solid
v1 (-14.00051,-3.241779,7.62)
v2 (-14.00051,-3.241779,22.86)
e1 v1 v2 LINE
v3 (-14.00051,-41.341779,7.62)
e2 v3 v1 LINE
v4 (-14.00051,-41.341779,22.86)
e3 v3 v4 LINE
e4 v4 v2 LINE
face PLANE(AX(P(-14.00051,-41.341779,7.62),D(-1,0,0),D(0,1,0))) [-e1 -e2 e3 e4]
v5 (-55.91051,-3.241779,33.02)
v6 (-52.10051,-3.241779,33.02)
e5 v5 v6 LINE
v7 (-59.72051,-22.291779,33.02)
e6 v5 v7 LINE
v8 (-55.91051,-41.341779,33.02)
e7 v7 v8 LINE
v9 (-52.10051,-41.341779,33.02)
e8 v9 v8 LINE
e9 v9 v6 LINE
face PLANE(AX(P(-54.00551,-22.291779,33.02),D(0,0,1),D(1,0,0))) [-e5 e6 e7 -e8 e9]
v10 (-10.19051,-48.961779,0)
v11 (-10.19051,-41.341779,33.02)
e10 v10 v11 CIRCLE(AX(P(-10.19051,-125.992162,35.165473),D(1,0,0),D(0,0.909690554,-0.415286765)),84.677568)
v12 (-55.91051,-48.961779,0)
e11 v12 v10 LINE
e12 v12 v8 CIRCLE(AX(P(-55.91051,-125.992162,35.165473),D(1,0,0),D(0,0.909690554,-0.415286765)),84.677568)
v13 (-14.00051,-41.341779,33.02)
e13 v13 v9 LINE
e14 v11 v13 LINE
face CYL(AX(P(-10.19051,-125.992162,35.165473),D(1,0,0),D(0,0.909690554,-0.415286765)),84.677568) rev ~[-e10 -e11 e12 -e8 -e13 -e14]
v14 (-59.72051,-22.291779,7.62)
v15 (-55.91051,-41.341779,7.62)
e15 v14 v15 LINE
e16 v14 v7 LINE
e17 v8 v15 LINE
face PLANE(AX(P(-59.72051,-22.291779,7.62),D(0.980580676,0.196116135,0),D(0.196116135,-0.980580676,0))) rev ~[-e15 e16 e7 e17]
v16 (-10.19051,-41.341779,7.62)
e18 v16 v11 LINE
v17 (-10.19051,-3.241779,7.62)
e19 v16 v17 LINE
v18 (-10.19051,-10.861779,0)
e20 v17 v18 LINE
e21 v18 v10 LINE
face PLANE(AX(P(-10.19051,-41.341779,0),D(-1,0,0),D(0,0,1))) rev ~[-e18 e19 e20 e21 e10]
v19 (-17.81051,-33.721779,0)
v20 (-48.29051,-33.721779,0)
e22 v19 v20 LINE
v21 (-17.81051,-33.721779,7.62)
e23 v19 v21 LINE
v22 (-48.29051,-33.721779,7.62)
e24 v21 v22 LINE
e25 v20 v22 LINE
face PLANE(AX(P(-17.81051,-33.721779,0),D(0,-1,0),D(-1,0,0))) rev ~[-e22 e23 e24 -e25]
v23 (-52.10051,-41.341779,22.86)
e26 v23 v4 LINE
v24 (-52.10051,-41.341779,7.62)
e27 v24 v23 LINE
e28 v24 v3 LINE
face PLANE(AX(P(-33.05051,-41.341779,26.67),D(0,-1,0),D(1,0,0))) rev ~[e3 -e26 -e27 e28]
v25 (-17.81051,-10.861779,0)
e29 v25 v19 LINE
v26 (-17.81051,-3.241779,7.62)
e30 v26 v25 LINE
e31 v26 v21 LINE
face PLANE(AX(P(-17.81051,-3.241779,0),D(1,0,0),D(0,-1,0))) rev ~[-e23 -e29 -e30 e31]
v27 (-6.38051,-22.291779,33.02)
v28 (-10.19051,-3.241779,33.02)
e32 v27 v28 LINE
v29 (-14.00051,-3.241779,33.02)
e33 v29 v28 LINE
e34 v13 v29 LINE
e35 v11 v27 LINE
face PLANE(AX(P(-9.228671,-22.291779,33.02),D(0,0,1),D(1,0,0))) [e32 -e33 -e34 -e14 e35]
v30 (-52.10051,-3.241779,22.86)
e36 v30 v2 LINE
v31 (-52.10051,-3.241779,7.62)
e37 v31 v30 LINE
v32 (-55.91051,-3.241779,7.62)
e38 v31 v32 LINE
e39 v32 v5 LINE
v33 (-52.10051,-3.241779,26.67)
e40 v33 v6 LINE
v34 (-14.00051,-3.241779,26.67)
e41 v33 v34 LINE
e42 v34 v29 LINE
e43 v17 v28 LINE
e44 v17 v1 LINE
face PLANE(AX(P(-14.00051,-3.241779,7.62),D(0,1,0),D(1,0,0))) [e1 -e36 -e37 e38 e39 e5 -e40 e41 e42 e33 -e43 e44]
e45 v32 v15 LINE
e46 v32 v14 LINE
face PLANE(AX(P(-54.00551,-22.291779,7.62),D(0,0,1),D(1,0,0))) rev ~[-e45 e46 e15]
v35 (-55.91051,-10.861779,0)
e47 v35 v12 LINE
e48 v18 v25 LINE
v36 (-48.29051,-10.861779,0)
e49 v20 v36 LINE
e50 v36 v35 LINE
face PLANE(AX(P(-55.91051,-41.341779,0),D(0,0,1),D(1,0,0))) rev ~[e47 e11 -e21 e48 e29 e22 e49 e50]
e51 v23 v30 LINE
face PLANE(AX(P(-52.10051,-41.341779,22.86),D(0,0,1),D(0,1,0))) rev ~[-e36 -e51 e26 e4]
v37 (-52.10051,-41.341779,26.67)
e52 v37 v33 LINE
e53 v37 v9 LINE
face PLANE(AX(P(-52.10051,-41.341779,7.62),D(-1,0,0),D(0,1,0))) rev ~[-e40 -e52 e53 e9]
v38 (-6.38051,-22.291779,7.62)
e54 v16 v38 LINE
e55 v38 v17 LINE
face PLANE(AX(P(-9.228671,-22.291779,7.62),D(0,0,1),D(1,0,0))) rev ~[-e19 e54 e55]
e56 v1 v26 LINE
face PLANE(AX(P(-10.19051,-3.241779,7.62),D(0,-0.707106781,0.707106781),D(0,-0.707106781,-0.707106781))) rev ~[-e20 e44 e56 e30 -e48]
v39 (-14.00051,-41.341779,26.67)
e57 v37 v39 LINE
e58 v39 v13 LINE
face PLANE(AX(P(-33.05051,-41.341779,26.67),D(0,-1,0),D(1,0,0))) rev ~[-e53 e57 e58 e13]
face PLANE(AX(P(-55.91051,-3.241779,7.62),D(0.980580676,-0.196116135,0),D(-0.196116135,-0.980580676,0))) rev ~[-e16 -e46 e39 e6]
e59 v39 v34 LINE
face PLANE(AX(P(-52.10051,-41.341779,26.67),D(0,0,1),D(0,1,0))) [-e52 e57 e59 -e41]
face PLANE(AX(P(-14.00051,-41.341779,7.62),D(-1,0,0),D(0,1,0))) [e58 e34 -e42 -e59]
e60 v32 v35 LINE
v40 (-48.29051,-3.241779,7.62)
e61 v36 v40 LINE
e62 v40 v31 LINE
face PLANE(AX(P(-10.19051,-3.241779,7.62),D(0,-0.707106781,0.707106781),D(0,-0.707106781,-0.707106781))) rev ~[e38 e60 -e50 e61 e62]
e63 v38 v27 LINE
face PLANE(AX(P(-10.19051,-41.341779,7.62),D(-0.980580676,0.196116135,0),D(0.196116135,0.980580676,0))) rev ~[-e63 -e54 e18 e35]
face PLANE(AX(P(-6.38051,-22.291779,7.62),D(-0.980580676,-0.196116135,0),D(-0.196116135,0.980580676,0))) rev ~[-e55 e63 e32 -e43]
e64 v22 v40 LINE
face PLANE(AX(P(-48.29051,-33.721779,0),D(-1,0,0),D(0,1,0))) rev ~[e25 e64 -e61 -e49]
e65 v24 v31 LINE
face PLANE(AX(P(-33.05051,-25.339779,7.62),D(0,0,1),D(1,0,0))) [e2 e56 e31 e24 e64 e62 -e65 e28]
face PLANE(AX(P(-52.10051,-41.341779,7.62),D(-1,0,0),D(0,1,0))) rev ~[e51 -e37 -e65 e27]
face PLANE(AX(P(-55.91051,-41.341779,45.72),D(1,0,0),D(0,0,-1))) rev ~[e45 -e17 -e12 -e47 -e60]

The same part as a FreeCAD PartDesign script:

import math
import FreeCAD as App
import Part
import Sketcher

V = App.Vector
Q = App.Units.Quantity

doc = App.newDocument("Part")
body = doc.addObject("PartDesign::Body", "Body")

sketch1 = body.newObject("Sketcher::SketchObject", "Sketch")
sketch1.AttachmentSupport = (doc.getObject("XY_Plane"), [""])
sketch1.MapMode = "FlatFace"
sketch1.addGeometry(Part.LineSegment(V(-48, -3, 0), V(-56, -3, 0)), False)
sketch1.addGeometry(Part.LineSegment(V(-56, -3, 0), V(-56, -41, 0)), False)
sketch1.addGeometry(Part.LineSegment(V(-56, -41, 0), V(-10, -41, 0)), False)
sketch1.addGeometry(Part.LineSegment(V(-10, -41, 0), V(-10, -3, 0)), False)
sketch1.addGeometry(Part.LineSegment(V(-10, -3, 0), V(-18, -3, 0)), False)
sketch1.addGeometry(Part.LineSegment(V(-18, -3, 0), V(-18, -34, 0)), False)
sketch1.addGeometry(Part.LineSegment(V(-18, -34, 0), V(-48, -34, 0)), False)
sketch1.addGeometry(Part.LineSegment(V(-48, -34, 0), V(-48, -3, 0)), False)
sketch1.addConstraint(Sketcher.Constraint("Coincident", 0, 2, 1, 1))
sketch1.addConstraint(Sketcher.Constraint("Coincident", 1, 2, 2, 1))
sketch1.addConstraint(Sketcher.Constraint("Coincident", 2, 2, 3, 1))
sketch1.addConstraint(Sketcher.Constraint("Coincident", 3, 2, 4, 1))
sketch1.addConstraint(Sketcher.Constraint("Coincident", 4, 2, 5, 1))
sketch1.addConstraint(Sketcher.Constraint("Coincident", 5, 2, 6, 1))
sketch1.addConstraint(Sketcher.Constraint("Coincident", 6, 2, 7, 1))
sketch1.addConstraint(Sketcher.Constraint("Coincident", 7, 2, 0, 1))
sketch1.addConstraint(Sketcher.Constraint("Horizontal", 0))
sketch1.addConstraint(Sketcher.Constraint("Vertical", 1))
sketch1.addConstraint(Sketcher.Constraint("Horizontal", 2))
sketch1.addConstraint(Sketcher.Constraint("Vertical", 3))
sketch1.addConstraint(Sketcher.Constraint("Horizontal", 4))
sketch1.addConstraint(Sketcher.Constraint("Vertical", 5))
sketch1.addConstraint(Sketcher.Constraint("Horizontal", 6))
sketch1.addConstraint(Sketcher.Constraint("Vertical", 7))
sketch1.addConstraint(Sketcher.Constraint("Horizontal", 0, 2, 3, 2))
sketch1.addConstraint(Sketcher.Constraint("Equal", 0, 4))
sketch1.addConstraint(Sketcher.Constraint("Equal", 6, 5))
sketch1.addConstraint(Sketcher.Constraint("DistanceX", 0, 2, 0, 1, Q("0.3 in")))
sketch1.addConstraint(Sketcher.Constraint("DistanceX", 2, 1, 2, 2, Q("1.8 in")))
sketch1.addConstraint(Sketcher.Constraint("DistanceY", 1, 2, 1, 1, Q("1.5 in")))
sketch1.addConstraint(Sketcher.Constraint("DistanceX", 0, 2, -1, 1, 55.91051))
sketch1.addConstraint(Sketcher.Constraint("DistanceY", 0, 2, -1, 1, 3.241779))
pad1 = body.newObject("PartDesign::Pad", "Pad")
pad1.Profile = sketch1
pad1.Length = Q("0.3 in")

sketch2 = body.newObject("Sketcher::SketchObject", "Sketch001")
sketch2.AttachmentSupport = (doc.getObject("YZ_Plane"), [""])
sketch2.MapMode = "FlatFace"
sketch2.AttachmentOffset = App.Placement(V(0, 0, -10.19051), App.Rotation())
sketch2.addGeometry(Part.LineSegment(V(-3, 0, 0), V(-3, 8, 0)), False)
sketch2.addGeometry(Part.LineSegment(V(-3, 8, 0), V(-11, 0, 0)), False)
sketch2.addGeometry(Part.LineSegment(V(-11, 0, 0), V(-3, 0, 0)), False)
sketch2.addConstraint(Sketcher.Constraint("Coincident", 0, 2, 1, 1))
sketch2.addConstraint(Sketcher.Constraint("Coincident", 1, 2, 2, 1))
sketch2.addConstraint(Sketcher.Constraint("Coincident", 2, 2, 0, 1))
sketch2.addConstraint(Sketcher.Constraint("Vertical", 0))
sketch2.addConstraint(Sketcher.Constraint("Horizontal", 2))
sketch2.addConstraint(Sketcher.Constraint("PointOnObject", 1, 2, -1))
sketch2.addConstraint(Sketcher.Constraint("Equal", 2, 0))
sketch2.addConstraint(Sketcher.Constraint("DistanceX", 2, 1, 2, 2, Q("0.3 in")))
sketch2.addConstraint(Sketcher.Constraint("DistanceX", 0, 2, -1, 1, 3.241779))
pocket1 = body.newObject("PartDesign::Pocket", "Pocket")
pocket1.Profile = sketch2
pocket1.Length = Q("2 in")

sketch3 = body.newObject("Sketcher::SketchObject", "Sketch002")
sketch3.AttachmentSupport = (doc.getObject("XZ_Plane"), [""])
sketch3.MapMode = "FlatFace"
sketch3.AttachmentOffset = App.Placement(V(0, 0, 41.341779), App.Rotation())
sketch3.addGeometry(Part.LineSegment(V(-56, 46, 0), V(-56, 0, 0)), False)
sketch3.addGeometry(Part.LineSegment(V(-56, 0, 0), V(-10, 0, 0)), False)
sketch3.addGeometry(Part.LineSegment(V(-10, 0, 0), V(-10, 46, 0)), False)
sketch3.addGeometry(Part.LineSegment(V(-10, 46, 0), V(-56, 46, 0)), False)
sketch3.addConstraint(Sketcher.Constraint("Coincident", 0, 2, 1, 1))
sketch3.addConstraint(Sketcher.Constraint("Coincident", 1, 2, 2, 1))
sketch3.addConstraint(Sketcher.Constraint("Coincident", 2, 2, 3, 1))
sketch3.addConstraint(Sketcher.Constraint("Coincident", 3, 2, 0, 1))
sketch3.addConstraint(Sketcher.Constraint("Vertical", 0))
sketch3.addConstraint(Sketcher.Constraint("Horizontal", 1))
sketch3.addConstraint(Sketcher.Constraint("Vertical", 2))
sketch3.addConstraint(Sketcher.Constraint("Horizontal", 3))
sketch3.addConstraint(Sketcher.Constraint("PointOnObject", 0, 2, -1))
sketch3.addConstraint(Sketcher.Constraint("Equal", 3, 0))
sketch3.addConstraint(Sketcher.Constraint("DistanceX", 1, 1, 1, 2, Q("1.8 in")))
sketch3.addConstraint(Sketcher.Constraint("DistanceX", 0, 2, -1, 1, 55.91051))
pad2 = body.newObject("PartDesign::Pad", "Pad001")
pad2.Profile = sketch3
pad2.Length = Q("0.3 in")

sketch4 = body.newObject("Sketcher::SketchObject", "Sketch003")
sketch4.AttachmentSupport = (doc.getObject("YZ_Plane"), [""])
sketch4.MapMode = "FlatFace"
sketch4.AttachmentOffset = App.Placement(V(0, 0, -10.19051), App.Rotation())
sketch4.addGeometry(Part.LineSegment(V(-49, 46, 0), V(-49, 0, 0)), False)
sketch4.addGeometry(Part.ArcOfCircle(Part.Circle(V(-126, 35, 0), V(0, 0, 1), 85), math.radians(-25), math.radians(-1)), False)
sketch4.addGeometry(Part.LineSegment(V(-41, 33, 0), V(-41, 46, 0)), False)
sketch4.addGeometry(Part.LineSegment(V(-41, 46, 0), V(-49, 46, 0)), False)
sketch4.addConstraint(Sketcher.Constraint("Coincident", 0, 2, 1, 1))
sketch4.addConstraint(Sketcher.Constraint("Coincident", 1, 2, 2, 1))
sketch4.addConstraint(Sketcher.Constraint("Coincident", 2, 2, 3, 1))
sketch4.addConstraint(Sketcher.Constraint("Coincident", 3, 2, 0, 1))
sketch4.addConstraint(Sketcher.Constraint("Vertical", 0))
sketch4.addConstraint(Sketcher.Constraint("Vertical", 2))
sketch4.addConstraint(Sketcher.Constraint("Horizontal", 3))
sketch4.addConstraint(Sketcher.Constraint("PointOnObject", 0, 2, -1))
sketch4.addConstraint(Sketcher.Constraint("DistanceX", 3, 2, 3, 1, Q("0.3 in")))
sketch4.addConstraint(Sketcher.Constraint("DistanceY", 0, 2, 0, 1, Q("1.8 in")))
sketch4.addConstraint(Sketcher.Constraint("DistanceY", 2, 1, 2, 2, Q("0.5 in")))
sketch4.addConstraint(Sketcher.Constraint("Radius", 1, 84.677568))
sketch4.addConstraint(Sketcher.Constraint("DistanceX", 0, 2, -1, 1, 48.961779))
pocket2 = body.newObject("PartDesign::Pocket", "Pocket001")
pocket2.Profile = sketch4
pocket2.Length = Q("2 in")

sketch5 = body.newObject("Sketcher::SketchObject", "Sketch004")
sketch5.AttachmentSupport = (doc.getObject("XY_Plane"), [""])
sketch5.MapMode = "FlatFace"
sketch5.AttachmentOffset = App.Placement(V(0, 0, 0.3 * 25.4), App.Rotation())
sketch5.addGeometry(Part.LineSegment(V(-10.2, -41.3, 0), V(-6.4, -22.3, 0)), False)
sketch5.addGeometry(Part.LineSegment(V(-6.4, -22.3, 0), V(-10.2, -3.2, 0)), False)
sketch5.addGeometry(Part.LineSegment(V(-10.2, -3.2, 0), V(-14, -3.2, 0)), False)
sketch5.addGeometry(Part.LineSegment(V(-14, -3.2, 0), V(-14, -41.3, 0)), False)
sketch5.addGeometry(Part.LineSegment(V(-14, -41.3, 0), V(-10.2, -41.3, 0)), False)
sketch5.addGeometry(Part.LineSegment(V(-55.9, -41.3, 0), V(-52.1, -41.3, 0)), False)
sketch5.addGeometry(Part.LineSegment(V(-52.1, -41.3, 0), V(-52.1, -3.2, 0)), False)
sketch5.addGeometry(Part.LineSegment(V(-52.1, -3.2, 0), V(-55.9, -3.2, 0)), False)
sketch5.addGeometry(Part.LineSegment(V(-55.9, -3.2, 0), V(-59.7, -22.3, 0)), False)
sketch5.addGeometry(Part.LineSegment(V(-59.7, -22.3, 0), V(-55.9, -41.3, 0)), False)
sketch5.addConstraint(Sketcher.Constraint("Coincident", 0, 2, 1, 1))
sketch5.addConstraint(Sketcher.Constraint("Coincident", 1, 2, 2, 1))
sketch5.addConstraint(Sketcher.Constraint("Coincident", 2, 2, 3, 1))
sketch5.addConstraint(Sketcher.Constraint("Coincident", 3, 2, 4, 1))
sketch5.addConstraint(Sketcher.Constraint("Coincident", 4, 2, 0, 1))
sketch5.addConstraint(Sketcher.Constraint("Coincident", 5, 2, 6, 1))
sketch5.addConstraint(Sketcher.Constraint("Coincident", 6, 2, 7, 1))
sketch5.addConstraint(Sketcher.Constraint("Coincident", 7, 2, 8, 1))
sketch5.addConstraint(Sketcher.Constraint("Coincident", 8, 2, 9, 1))
sketch5.addConstraint(Sketcher.Constraint("Coincident", 9, 2, 5, 1))
sketch5.addConstraint(Sketcher.Constraint("Horizontal", 2))
sketch5.addConstraint(Sketcher.Constraint("Vertical", 3))
sketch5.addConstraint(Sketcher.Constraint("Horizontal", 4))
sketch5.addConstraint(Sketcher.Constraint("Horizontal", 5))
sketch5.addConstraint(Sketcher.Constraint("Vertical", 6))
sketch5.addConstraint(Sketcher.Constraint("Horizontal", 7))
sketch5.addConstraint(Sketcher.Constraint("Parallel", 0, 8))
sketch5.addConstraint(Sketcher.Constraint("Parallel", 1, 9))
sketch5.addConstraint(Sketcher.Constraint("Horizontal", 4, 2, 5, 2))
sketch5.addConstraint(Sketcher.Constraint("Horizontal", 2, 2, 6, 2))
sketch5.addConstraint(Sketcher.Constraint("Horizontal", 0, 2, 8, 2))
sketch5.addConstraint(Sketcher.Constraint("Vertical", 1, 2, 4, 2))
sketch5.addConstraint(Sketcher.Constraint("Vertical", 7, 2, 9, 2))
sketch5.addConstraint(Sketcher.Constraint("Equal", 4, 5))
sketch5.addConstraint(Sketcher.Constraint("DistanceY", 3, 2, 3, 1, Q("1.5 in")))
sketch5.addConstraint(Sketcher.Constraint("DistanceX", 2, 2, 2, 1, Q("0.15 in")))
sketch5.addConstraint(Sketcher.Constraint("DistanceX", 2, 2, 0, 2, Q("0.3 in")))
sketch5.addConstraint(Sketcher.Constraint("DistanceX", 5, 2, 3, 2, Q("1.5 in")))
sketch5.addConstraint(Sketcher.Constraint("DistanceX", 0, 2, -1, 1, 6.38051))
sketch5.addConstraint(Sketcher.Constraint("DistanceY", 0, 2, -1, 1, 22.291779))
pad3 = body.newObject("PartDesign::Pad", "Pad002")
pad3.Profile = sketch5
pad3.Length = Q("1 in")

sketch6 = body.newObject("Sketcher::SketchObject", "Sketch005")
sketch6.AttachmentSupport = (doc.getObject("YZ_Plane"), [""])
sketch6.MapMode = "FlatFace"
sketch6.AttachmentOffset = App.Placement(V(0, 0, -52.10051), App.Rotation())
sketch6.addGeometry(Part.LineSegment(V(-41.3, 26.7, 0), V(-41.3, 22.9, 0)), False)
sketch6.addGeometry(Part.LineSegment(V(-41.3, 22.9, 0), V(-3.2, 22.9, 0)), False)
sketch6.addGeometry(Part.LineSegment(V(-3.2, 22.9, 0), V(-3.2, 26.7, 0)), False)
sketch6.addGeometry(Part.LineSegment(V(-3.2, 26.7, 0), V(-41.3, 26.7, 0)), False)
sketch6.addConstraint(Sketcher.Constraint("Coincident", 0, 2, 1, 1))
sketch6.addConstraint(Sketcher.Constraint("Coincident", 1, 2, 2, 1))
sketch6.addConstraint(Sketcher.Constraint("Coincident", 2, 2, 3, 1))
sketch6.addConstraint(Sketcher.Constraint("Coincident", 3, 2, 0, 1))
sketch6.addConstraint(Sketcher.Constraint("Vertical", 0))
sketch6.addConstraint(Sketcher.Constraint("Horizontal", 1))
sketch6.addConstraint(Sketcher.Constraint("Vertical", 2))
sketch6.addConstraint(Sketcher.Constraint("Horizontal", 3))
sketch6.addConstraint(Sketcher.Constraint("DistanceX", 1, 1, 1, 2, Q("1.5 in")))
sketch6.addConstraint(Sketcher.Constraint("DistanceY", 0, 2, 0, 1, Q("0.15 in")))
sketch6.addConstraint(Sketcher.Constraint("DistanceY", -1, 1, 0, 2, Q("0.9 in")))
sketch6.addConstraint(Sketcher.Constraint("DistanceX", 0, 2, -1, 1, 41.341779))
pad4 = body.newObject("PartDesign::Pad", "Pad003")
pad4.Profile = sketch6
pad4.Length = Q("1.5 in")

doc.recompute()
